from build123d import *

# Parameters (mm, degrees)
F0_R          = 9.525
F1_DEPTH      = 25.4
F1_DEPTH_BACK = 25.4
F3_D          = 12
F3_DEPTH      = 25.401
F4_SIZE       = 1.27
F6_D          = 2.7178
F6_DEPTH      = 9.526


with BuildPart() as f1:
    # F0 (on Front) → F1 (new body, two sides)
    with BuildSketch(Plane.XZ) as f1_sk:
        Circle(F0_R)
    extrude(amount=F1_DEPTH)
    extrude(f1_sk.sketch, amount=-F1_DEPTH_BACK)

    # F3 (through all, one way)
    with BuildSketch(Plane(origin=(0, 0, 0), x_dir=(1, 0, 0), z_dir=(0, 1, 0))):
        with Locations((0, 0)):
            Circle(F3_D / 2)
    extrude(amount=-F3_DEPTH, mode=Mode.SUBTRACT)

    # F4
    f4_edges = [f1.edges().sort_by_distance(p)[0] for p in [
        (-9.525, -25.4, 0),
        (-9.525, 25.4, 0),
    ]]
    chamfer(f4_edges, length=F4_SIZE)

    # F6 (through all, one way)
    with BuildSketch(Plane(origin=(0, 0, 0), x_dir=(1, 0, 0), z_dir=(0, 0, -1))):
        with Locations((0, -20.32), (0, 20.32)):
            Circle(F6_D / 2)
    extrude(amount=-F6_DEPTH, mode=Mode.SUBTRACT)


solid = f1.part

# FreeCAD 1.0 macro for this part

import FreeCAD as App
import Part
import Sketcher
Q = App.Units.Quantity


def edges_at(feature, points):
    """Names of the edges that pass closest to the given points."""
    edges = feature.Shape.Edges
    near = lambda p: min(range(len(edges)), key=lambda i: edges[i].distToShape(Part.Vertex(*p))[0])
    return sorted({f"Edge{near(p) + 1}" for p in points})

doc = App.newDocument("Part")
body = doc.addObject("PartDesign::Body", "Body")

# Sketch on XZ plane
sketch1 = doc.addObject("Sketcher::SketchObject", "Sketch")
body.addObject(sketch1)
sketch1.AttachmentSupport = (doc.XZ_Plane, [""])
sketch1.MapMode = "FlatFace"
sketch1.addGeometry(Part.Circle(App.Vector(0, 0, 0), App.Vector(0, 0, 1), 10), False)
sketch1.addConstraint([
    Sketcher.Constraint("Coincident", 0, 3, -1, 1),
    Sketcher.Constraint("Diameter", 0, Q("0.75 in")),
])
pad1 = doc.addObject("PartDesign::Pad", "Pad")
body.addObject(pad1)
pad1.Profile = sketch1
pad1.Type = "TwoLengths"
pad1.Length = Q("1 in")
pad1.Length2 = Q("1 in")

# Sketch on XZ plane
sketch2 = doc.addObject("Sketcher::SketchObject", "Sketch001")
body.addObject(sketch2)
sketch2.AttachmentSupport = (doc.XZ_Plane, [""])
sketch2.MapMode = "FlatFace"
sketch2.addGeometry(Part.Circle(App.Vector(0, 0, 0), App.Vector(0, 0, 1), 6), False)
sketch2.addConstraint([
    Sketcher.Constraint("Coincident", 0, 3, -1, 1),
    Sketcher.Constraint("Diameter", 0, 12.0),
])
pocket1 = doc.addObject("PartDesign::Pocket", "Pocket")
body.addObject(pocket1)
pocket1.Profile = sketch2
pocket1.Type = "ThroughAll"
pocket1.Reversed = True
doc.recompute()

chamfer = doc.addObject("PartDesign::Chamfer", "Chamfer")
body.addObject(chamfer)
chamfer.Base = (pocket1, edges_at(pocket1, [(-9.525, -25.4, 0), (-9.525, 25.4, 0)]))
chamfer.Size = Q("0.05 in")

# Sketch on XY plane
sketch3 = doc.addObject("Sketcher::SketchObject", "Sketch002")
body.addObject(sketch3)
sketch3.AttachmentSupport = (doc.XY_Plane, [""])
sketch3.MapMode = "FlatFace"
sketch3.addGeometry([
    Part.Circle(App.Vector(0, -20.3, 0), App.Vector(0, 0, 1), 1.4),
    Part.Circle(App.Vector(0, 20.3, 0), App.Vector(0, 0, 1), 1.4),
], False)
sketch3.addConstraint([
    Sketcher.Constraint("Equal", 0, 1),
    Sketcher.Constraint("Symmetric", 0, 3, 1, 3, -1, 1),
    Sketcher.Constraint("PointOnObject", 0, 3, -2),
    Sketcher.Constraint("Diameter", 0, Q("0.107 in")),
    Sketcher.Constraint("DistanceY", 0, 3, -1, 1, Q("0.8 in")),
])
pocket2 = doc.addObject("PartDesign::Pocket", "Pocket001")
body.addObject(pocket2)
pocket2.Profile = sketch3
pocket2.Type = "ThroughAll"
pocket2.Reversed = True

doc.recompute()
